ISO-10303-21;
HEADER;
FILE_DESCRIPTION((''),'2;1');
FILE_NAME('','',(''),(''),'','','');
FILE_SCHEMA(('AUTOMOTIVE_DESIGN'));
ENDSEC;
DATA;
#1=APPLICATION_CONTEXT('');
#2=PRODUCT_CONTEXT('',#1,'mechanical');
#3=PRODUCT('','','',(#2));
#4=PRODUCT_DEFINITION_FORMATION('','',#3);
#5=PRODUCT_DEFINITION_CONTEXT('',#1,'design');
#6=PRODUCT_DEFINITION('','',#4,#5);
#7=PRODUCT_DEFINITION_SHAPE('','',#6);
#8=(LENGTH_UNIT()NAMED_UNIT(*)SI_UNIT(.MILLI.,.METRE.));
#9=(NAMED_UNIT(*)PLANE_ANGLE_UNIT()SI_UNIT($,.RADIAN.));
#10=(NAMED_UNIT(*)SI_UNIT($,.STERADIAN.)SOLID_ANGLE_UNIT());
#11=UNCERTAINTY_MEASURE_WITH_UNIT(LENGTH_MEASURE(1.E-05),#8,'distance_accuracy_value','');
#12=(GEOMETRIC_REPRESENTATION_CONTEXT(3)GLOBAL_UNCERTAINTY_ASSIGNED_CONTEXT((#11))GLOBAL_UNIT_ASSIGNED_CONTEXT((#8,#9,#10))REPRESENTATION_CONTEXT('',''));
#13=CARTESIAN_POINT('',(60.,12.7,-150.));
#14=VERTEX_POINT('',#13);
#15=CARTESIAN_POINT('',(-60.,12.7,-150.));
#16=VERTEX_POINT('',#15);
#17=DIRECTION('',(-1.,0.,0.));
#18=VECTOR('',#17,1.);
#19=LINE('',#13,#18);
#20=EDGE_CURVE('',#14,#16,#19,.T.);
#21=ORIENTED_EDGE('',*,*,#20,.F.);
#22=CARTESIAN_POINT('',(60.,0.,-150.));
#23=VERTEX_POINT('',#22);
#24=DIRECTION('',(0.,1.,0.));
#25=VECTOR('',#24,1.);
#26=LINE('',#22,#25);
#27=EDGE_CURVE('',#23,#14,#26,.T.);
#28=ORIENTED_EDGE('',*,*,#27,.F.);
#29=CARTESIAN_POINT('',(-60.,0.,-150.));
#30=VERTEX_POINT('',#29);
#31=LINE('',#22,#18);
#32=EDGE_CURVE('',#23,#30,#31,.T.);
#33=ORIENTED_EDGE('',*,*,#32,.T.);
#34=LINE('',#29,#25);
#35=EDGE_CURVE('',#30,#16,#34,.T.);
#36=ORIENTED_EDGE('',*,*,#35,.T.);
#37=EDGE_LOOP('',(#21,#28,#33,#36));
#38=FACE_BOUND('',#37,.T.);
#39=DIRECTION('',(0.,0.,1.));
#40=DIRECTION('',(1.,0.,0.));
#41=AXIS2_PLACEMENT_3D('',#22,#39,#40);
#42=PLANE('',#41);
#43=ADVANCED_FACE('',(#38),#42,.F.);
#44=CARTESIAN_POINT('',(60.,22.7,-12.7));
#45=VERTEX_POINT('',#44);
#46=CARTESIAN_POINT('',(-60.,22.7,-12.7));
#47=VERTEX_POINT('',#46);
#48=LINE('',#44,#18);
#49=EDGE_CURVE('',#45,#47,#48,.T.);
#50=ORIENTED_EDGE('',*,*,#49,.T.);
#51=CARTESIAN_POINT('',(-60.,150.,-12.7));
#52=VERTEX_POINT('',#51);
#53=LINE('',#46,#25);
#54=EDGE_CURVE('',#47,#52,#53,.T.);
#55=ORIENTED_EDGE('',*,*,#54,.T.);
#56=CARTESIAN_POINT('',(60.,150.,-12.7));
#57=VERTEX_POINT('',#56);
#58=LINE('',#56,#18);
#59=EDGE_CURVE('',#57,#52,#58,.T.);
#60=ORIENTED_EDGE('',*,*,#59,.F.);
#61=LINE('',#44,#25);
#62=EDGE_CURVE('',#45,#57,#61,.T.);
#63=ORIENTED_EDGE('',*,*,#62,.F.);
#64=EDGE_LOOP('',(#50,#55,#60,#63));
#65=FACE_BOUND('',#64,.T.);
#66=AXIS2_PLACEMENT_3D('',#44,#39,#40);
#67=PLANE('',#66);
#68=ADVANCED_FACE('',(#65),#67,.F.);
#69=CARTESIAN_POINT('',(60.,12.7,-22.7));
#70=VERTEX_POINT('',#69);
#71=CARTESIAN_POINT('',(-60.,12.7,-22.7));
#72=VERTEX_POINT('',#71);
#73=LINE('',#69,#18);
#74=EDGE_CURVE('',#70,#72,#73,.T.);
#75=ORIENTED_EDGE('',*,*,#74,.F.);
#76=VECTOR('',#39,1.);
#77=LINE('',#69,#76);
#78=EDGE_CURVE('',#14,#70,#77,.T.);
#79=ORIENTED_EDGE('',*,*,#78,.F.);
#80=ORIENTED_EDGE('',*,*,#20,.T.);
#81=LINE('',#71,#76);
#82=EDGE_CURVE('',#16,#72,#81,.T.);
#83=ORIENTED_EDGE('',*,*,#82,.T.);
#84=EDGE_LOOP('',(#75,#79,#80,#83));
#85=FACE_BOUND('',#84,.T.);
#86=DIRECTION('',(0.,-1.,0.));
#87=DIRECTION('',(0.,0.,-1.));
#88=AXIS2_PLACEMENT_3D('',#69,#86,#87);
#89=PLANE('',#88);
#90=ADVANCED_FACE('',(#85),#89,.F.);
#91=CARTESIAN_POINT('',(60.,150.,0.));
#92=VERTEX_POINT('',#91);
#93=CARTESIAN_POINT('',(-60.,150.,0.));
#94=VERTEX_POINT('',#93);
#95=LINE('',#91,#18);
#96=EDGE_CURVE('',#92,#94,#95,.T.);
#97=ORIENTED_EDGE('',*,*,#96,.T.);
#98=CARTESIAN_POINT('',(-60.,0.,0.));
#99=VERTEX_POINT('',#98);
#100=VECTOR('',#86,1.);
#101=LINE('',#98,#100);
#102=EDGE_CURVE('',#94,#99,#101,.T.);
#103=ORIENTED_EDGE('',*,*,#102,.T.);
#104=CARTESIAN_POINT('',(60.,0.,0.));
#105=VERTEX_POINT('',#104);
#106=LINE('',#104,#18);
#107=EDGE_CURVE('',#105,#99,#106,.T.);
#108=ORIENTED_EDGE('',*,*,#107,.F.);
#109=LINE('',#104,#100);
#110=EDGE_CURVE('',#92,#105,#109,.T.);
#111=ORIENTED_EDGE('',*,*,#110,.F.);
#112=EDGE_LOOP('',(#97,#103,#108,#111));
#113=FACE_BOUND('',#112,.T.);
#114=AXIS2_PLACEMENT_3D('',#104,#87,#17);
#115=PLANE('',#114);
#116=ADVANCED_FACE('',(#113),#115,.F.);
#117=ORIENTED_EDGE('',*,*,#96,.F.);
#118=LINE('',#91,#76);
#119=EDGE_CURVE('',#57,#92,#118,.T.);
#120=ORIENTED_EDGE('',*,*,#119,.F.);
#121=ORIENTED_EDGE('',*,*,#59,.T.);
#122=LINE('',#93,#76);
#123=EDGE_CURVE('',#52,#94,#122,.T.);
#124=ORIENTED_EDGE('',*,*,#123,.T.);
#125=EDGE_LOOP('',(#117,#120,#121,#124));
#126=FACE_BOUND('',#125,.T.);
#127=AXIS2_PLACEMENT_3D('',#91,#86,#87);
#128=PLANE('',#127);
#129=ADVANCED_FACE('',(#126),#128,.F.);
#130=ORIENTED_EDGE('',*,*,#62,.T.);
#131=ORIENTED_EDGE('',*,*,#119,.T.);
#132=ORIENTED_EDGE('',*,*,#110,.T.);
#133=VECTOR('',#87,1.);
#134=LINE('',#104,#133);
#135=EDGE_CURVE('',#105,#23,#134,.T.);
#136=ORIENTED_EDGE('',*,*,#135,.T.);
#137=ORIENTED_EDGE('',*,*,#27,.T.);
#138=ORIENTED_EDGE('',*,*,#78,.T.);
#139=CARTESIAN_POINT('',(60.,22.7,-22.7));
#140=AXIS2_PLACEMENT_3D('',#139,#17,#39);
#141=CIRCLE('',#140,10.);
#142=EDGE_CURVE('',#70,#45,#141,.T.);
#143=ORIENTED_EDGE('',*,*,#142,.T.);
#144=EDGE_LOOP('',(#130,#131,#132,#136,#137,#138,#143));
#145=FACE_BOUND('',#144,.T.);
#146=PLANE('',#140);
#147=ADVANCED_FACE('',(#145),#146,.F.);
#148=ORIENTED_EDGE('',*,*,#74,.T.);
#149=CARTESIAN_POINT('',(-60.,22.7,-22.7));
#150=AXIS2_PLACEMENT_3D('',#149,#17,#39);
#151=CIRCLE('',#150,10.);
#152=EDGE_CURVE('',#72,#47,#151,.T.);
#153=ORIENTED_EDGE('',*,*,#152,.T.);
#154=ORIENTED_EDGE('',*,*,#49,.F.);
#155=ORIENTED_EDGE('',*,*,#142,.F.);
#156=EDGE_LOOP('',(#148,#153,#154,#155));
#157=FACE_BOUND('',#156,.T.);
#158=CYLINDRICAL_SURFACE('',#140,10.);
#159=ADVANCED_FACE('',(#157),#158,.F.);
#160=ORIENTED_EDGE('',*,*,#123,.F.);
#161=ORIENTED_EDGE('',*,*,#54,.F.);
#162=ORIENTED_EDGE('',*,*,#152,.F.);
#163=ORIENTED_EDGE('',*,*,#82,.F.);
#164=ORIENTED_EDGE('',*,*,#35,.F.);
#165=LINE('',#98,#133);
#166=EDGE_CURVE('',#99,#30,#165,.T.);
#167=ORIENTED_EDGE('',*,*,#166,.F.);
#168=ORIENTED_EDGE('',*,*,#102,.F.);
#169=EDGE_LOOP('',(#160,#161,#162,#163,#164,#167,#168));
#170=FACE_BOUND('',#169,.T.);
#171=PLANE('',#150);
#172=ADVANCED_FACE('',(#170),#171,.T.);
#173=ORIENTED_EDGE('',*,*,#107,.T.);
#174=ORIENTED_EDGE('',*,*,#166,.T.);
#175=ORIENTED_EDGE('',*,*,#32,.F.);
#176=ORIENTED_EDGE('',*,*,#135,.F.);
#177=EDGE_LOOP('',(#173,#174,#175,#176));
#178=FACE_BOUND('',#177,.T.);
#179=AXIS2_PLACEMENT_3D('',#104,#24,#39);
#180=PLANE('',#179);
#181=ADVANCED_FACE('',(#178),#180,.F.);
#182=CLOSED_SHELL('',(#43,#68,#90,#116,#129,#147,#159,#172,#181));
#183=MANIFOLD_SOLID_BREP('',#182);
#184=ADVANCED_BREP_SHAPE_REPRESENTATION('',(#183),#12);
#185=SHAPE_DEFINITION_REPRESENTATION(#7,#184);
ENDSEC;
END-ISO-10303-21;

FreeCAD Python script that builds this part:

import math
import FreeCAD as App
import Part
import Sketcher

V = App.Vector

doc = App.newDocument("Part")
body = doc.addObject("PartDesign::Body", "Body")

# Sketch on YZ plane
sketch1 = body.newObject("Sketcher::SketchObject", "Sketch")
sketch1.AttachmentSupport = (doc.getObject("YZ_Plane"), [""])
sketch1.MapMode = "FlatFace"
sketch1.addGeometry([
    Part.LineSegment(V(150, 0, 0), V(0, 0, 0)),  # 0
    Part.LineSegment(V(0, 0, 0), V(0, -150, 0)),  # 1
    Part.LineSegment(V(0, -150, 0), V(13, -150, 0)),  # 2
    Part.LineSegment(V(13, -150, 0), V(13, -23, 0)),  # 3
    Part.ArcOfCircle(Part.Circle(V(23, -23, 0), V(0, 0, 1), 10), math.radians(90), math.radians(180)),  # 4
    Part.LineSegment(V(23, -13, 0), V(150, -13, 0)),  # 5
    Part.LineSegment(V(150, -13, 0), V(150, 0, 0)),  # 6
], False)
sketch1.addConstraint([
    Sketcher.Constraint("Coincident", 0, 2, 1, 1),
    Sketcher.Constraint("Coincident", 1, 2, 2, 1),
    Sketcher.Constraint("Coincident", 2, 2, 3, 1),
    Sketcher.Constraint("Tangent", 3, 2, 4, 2),
    Sketcher.Constraint("Tangent", 4, 1, 5, 1),
    Sketcher.Constraint("Coincident", 5, 2, 6, 1),
    Sketcher.Constraint("Coincident", 6, 2, 0, 1),
    Sketcher.Constraint("Horizontal", 0),
    Sketcher.Constraint("Vertical", 1),
    Sketcher.Constraint("Horizontal", 2),
    Sketcher.Constraint("Vertical", 3),
    Sketcher.Constraint("Horizontal", 5),
    Sketcher.Constraint("Vertical", 6),
    Sketcher.Constraint("Coincident", 0, 2, -1, 1),
    Sketcher.Constraint("Equal", 0, 1),
    Sketcher.Constraint("Equal", 5, 3),
    Sketcher.Constraint("Radius", 4, 10.0),
    Sketcher.Constraint("DistanceX", 0, 2, 0, 1, 150.0),
    Sketcher.Constraint("DistanceX", 2, 1, 2, 2, 12.7),
])
pad1 = body.newObject("PartDesign::Pad", "Pad")
pad1.Profile = sketch1
pad1.Length = 120
pad1.Midplane = True

doc.recompute()
